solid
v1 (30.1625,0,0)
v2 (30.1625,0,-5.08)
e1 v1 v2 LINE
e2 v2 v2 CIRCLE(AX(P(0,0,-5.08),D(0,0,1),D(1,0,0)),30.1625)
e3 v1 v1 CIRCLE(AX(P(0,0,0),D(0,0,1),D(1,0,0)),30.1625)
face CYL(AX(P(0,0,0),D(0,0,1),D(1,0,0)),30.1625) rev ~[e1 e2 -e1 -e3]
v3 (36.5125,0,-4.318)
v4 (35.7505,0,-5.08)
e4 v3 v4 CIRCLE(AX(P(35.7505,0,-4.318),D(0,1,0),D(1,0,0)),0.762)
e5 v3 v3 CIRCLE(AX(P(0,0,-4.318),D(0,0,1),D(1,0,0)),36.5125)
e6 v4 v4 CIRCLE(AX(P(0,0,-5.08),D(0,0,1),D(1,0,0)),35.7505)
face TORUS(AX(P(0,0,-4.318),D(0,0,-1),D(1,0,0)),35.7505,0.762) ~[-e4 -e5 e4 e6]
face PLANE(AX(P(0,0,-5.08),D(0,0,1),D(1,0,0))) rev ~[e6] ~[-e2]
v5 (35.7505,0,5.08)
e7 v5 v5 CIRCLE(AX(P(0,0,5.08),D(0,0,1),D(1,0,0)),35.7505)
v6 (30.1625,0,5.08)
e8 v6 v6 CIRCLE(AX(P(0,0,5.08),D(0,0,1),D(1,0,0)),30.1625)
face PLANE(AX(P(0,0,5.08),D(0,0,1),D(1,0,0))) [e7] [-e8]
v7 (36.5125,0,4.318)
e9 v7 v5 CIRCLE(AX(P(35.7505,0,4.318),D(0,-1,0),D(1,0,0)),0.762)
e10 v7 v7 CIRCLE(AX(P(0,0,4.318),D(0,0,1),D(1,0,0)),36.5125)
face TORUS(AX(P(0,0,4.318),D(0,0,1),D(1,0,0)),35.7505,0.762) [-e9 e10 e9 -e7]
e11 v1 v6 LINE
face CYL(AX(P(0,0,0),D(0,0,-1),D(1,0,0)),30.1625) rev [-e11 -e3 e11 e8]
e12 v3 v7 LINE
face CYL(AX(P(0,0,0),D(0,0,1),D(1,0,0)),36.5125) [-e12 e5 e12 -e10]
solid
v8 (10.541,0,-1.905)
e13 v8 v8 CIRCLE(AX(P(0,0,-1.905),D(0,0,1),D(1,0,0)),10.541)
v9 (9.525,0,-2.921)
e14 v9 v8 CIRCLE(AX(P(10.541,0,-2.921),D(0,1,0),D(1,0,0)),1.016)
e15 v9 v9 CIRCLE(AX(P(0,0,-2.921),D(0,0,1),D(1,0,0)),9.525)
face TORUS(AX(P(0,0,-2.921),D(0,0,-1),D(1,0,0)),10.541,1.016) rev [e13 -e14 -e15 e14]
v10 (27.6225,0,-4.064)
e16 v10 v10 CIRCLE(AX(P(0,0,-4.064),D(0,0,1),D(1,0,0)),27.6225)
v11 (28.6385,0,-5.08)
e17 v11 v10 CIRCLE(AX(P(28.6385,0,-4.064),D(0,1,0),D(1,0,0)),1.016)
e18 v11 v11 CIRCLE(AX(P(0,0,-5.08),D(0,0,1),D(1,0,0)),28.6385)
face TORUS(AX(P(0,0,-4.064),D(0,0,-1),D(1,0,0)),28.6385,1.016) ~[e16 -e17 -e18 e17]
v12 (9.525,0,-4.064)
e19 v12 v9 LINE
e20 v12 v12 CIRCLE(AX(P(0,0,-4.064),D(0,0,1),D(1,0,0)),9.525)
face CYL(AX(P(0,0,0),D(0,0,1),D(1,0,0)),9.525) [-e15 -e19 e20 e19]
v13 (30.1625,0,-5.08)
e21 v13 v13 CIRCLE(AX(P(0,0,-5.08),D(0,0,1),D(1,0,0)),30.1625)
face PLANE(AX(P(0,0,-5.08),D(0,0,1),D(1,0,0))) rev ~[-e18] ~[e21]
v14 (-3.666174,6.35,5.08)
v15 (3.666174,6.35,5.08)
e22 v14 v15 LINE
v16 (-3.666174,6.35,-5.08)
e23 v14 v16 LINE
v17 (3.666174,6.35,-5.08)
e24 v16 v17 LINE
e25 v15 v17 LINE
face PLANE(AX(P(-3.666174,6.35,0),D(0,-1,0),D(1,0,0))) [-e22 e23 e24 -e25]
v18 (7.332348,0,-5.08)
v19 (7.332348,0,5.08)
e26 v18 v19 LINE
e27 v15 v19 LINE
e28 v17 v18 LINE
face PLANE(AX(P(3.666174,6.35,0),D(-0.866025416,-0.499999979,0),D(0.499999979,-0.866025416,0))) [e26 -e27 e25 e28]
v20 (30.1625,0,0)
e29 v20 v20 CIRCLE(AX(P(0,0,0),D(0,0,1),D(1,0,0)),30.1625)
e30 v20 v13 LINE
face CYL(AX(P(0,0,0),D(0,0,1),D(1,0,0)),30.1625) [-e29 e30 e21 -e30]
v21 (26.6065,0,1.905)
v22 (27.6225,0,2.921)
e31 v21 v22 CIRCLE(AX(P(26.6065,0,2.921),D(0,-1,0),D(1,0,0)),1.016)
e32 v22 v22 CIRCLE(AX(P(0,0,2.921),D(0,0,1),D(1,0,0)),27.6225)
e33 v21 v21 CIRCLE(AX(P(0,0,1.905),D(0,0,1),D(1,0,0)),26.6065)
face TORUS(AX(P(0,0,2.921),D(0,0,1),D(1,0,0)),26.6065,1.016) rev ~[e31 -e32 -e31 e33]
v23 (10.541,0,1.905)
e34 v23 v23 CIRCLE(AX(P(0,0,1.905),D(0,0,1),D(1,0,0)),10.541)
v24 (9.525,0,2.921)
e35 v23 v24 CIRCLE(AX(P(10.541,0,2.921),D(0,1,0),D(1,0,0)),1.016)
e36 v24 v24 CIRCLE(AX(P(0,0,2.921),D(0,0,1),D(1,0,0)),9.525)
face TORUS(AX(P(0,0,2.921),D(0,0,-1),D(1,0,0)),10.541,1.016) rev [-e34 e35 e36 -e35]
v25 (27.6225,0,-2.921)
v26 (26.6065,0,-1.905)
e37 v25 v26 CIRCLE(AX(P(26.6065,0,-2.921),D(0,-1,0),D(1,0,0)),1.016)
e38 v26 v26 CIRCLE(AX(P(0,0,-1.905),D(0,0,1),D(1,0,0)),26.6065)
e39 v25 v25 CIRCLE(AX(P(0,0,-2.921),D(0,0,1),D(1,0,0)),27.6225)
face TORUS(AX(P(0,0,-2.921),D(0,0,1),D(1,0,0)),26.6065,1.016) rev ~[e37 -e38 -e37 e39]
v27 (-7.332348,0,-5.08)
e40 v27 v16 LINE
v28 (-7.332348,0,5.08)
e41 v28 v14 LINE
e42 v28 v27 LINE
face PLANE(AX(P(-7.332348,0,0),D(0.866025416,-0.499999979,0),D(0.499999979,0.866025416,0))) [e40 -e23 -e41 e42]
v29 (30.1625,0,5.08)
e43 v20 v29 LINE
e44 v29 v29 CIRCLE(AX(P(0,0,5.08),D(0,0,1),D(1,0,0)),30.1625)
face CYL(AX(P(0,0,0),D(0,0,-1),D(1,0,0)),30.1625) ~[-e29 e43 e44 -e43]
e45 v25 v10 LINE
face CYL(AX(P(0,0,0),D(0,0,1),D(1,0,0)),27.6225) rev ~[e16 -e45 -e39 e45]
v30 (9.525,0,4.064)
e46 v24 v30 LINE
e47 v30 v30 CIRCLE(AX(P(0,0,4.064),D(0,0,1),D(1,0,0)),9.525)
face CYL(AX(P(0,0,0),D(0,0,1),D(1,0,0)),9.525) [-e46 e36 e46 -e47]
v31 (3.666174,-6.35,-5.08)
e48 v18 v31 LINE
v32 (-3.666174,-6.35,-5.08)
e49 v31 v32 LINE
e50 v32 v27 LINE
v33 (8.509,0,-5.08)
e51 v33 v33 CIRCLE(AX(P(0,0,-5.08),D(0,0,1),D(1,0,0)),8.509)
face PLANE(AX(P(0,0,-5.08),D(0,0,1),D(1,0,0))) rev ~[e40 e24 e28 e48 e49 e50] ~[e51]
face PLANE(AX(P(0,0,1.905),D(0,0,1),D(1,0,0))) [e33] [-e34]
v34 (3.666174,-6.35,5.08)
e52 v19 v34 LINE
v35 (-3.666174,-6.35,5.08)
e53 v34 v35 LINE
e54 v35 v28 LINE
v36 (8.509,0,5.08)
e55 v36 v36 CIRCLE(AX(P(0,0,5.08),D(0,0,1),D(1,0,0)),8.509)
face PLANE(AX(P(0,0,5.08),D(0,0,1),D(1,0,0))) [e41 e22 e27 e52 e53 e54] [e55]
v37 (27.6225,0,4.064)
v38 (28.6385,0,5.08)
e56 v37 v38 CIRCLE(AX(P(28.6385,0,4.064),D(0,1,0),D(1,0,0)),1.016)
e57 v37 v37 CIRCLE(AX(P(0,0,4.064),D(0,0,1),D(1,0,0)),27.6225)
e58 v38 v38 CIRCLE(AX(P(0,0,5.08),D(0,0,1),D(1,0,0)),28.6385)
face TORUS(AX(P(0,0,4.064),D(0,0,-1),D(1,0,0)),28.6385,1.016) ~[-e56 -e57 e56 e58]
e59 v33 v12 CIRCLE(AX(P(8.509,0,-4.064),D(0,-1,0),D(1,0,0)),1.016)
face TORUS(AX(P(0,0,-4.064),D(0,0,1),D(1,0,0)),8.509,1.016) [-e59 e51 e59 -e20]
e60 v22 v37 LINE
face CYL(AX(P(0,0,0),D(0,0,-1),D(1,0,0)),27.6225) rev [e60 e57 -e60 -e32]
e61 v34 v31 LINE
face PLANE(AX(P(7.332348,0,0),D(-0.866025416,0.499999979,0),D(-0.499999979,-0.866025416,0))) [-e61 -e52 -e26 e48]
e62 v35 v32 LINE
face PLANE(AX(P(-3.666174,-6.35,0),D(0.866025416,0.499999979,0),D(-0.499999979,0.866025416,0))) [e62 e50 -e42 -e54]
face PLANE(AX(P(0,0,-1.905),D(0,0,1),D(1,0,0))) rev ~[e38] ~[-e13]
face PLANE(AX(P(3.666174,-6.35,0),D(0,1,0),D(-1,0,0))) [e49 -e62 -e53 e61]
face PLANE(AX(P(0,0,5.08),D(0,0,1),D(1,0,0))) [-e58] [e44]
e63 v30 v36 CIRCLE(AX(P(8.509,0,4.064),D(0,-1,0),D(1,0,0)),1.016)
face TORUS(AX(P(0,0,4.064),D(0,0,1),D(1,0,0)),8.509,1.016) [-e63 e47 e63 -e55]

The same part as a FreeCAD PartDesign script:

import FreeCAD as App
import Part
import Sketcher

V = App.Vector
Q = App.Units.Quantity


def edges_at(feature, points):
    """Names of the edges that pass closest to the given points."""
    edges = feature.Shape.Edges
    near = lambda p: min(range(len(edges)), key=lambda i: edges[i].distToShape(Part.Vertex(*p))[0])
    return sorted({f"Edge{near(p) + 1}" for p in points})


def add_polygon(sketch, points):
    """Adds a closed chain of lines whose ends are joined by coincident constraints."""
    first, n = sketch.GeometryCount, len(points)
    for a, b in zip(points, points[1:] + points[:1]):
        sketch.addGeometry(Part.LineSegment(App.Vector(*a, 0), App.Vector(*b, 0)), False)
    for i in range(n):
        sketch.addConstraint(Sketcher.Constraint("Coincident", first + i, 2, first + (i + 1) % n, 1))

doc = App.newDocument("Part")
body = doc.addObject("PartDesign::Body", "Body")
body.AllowCompound = True

# Sketch on XY plane
sketch1 = body.newObject("Sketcher::SketchObject", "Sketch")
sketch1.AttachmentSupport = (doc.getObject("XY_Plane"), [""])
sketch1.MapMode = "FlatFace"
sketch1.addGeometry(Part.Circle(V(0, 0, 0), V(0, 0, 1), 30), False)  # 0
sketch1.addGeometry(Part.Circle(V(0, 0, 0), V(0, 0, 1), 28), False)  # 1
sketch1.addGeometry(Part.Circle(V(0, 0, 0), V(0, 0, 1), 10), False)  # 2
add_polygon(sketch1, [(4, 6), (7, 0), (4, -6), (-4, -6), (-7, 0), (-4, 6)])  # lines 3-8
sketch1.addConstraint([
    Sketcher.Constraint("Horizontal", 5),
    Sketcher.Constraint("Horizontal", 8),
    Sketcher.Constraint("Coincident", 0, 3, -1, 1),
    Sketcher.Constraint("Coincident", 1, 3, -1, 1),
    Sketcher.Constraint("Coincident", 2, 3, -1, 1),
    Sketcher.Constraint("Symmetric", 3, 2, 6, 2, -1, 1),
    Sketcher.Constraint("Symmetric", 4, 2, 7, 2, -1, 1),
    Sketcher.Constraint("PointOnObject", 3, 2, -1),
    Sketcher.Constraint("Parallel", 3, 6),
    Sketcher.Constraint("Vertical", 5, 2, 7, 2),
    Sketcher.Constraint("Diameter", 2, Q("0.75 in")),
    Sketcher.Constraint("Diameter", 0, Q("2.375 in")),
    Sketcher.Constraint("Diameter", 1, Q("2.175 in")),
    Sketcher.Constraint("Angle", 3, Q("-60.000001 deg")),
    Sketcher.Constraint("DistanceY", 4, 2, -1, 1, Q("0.25 in")),
    Sketcher.Constraint("DistanceX", 5, 2, 5, 1, 7.332348),
])
pad1 = body.newObject("PartDesign::Pad", "Pad")
pad1.Profile = sketch1
pad1.Length = Q("0.4 in")
pad1.Midplane = True

# Sketch on XY plane
sketch2 = body.newObject("Sketcher::SketchObject", "Sketch001")
sketch2.AttachmentSupport = (doc.getObject("XY_Plane"), [""])
sketch2.MapMode = "FlatFace"
sketch2.addGeometry([
    Part.Circle(V(0, 0, 0), V(0, 0, 1), 28),
    Part.Circle(V(0, 0, 0), V(0, 0, 1), 10),
], False)
sketch2.addConstraint([
    Sketcher.Constraint("Coincident", 0, 3, -1, 1),
    Sketcher.Constraint("Coincident", 1, 3, -1, 1),
    Sketcher.Constraint("Diameter", 1, Q("0.75 in")),
    Sketcher.Constraint("Diameter", 0, Q("2.175 in")),
])
pad2 = body.newObject("PartDesign::Pad", "Pad001")
pad2.Profile = sketch2
pad2.Length = Q("0.15 in")
pad2.Midplane = True
doc.recompute()

fillet = body.newObject("PartDesign::Fillet", "Fillet")
fillet.Base = (pad2, edges_at(pad2, [
    (-27.622, 0, 1.905),
    (-9.525, 0, 1.905),
    (-27.622, 0, -1.905),
    (-9.525, 0, -1.905),
    (-27.622, 0, -5.08),
    (-9.525, 0, -5.08),
    (-9.525, 0, 5.08),
    (-27.622, 0, 5.08),
]))
fillet.Radius = Q("0.04 in")
body2 = doc.addObject("PartDesign::Body", "Body001")

# Sketch on XY plane
sketch3 = body2.newObject("Sketcher::SketchObject", "Sketch002")
sketch3.AttachmentSupport = (doc.getObject("XY_Plane001"), [""])
sketch3.MapMode = "FlatFace"
sketch3.addGeometry([
    Part.Circle(V(0, 0, 0), V(0, 0, 1), 37),
    Part.Circle(V(0, 0, 0), V(0, 0, 1), 30),
], False)
sketch3.addConstraint([
    Sketcher.Constraint("Coincident", 0, 3, -1, 1),
    Sketcher.Constraint("Coincident", 1, 3, -1, 1),
    Sketcher.Constraint("Diameter", 0, Q("2.875 in")),
    Sketcher.Constraint("Diameter", 1, Q("2.375 in")),
])
pad3 = body2.newObject("PartDesign::Pad", "Pad002")
pad3.Profile = sketch3
pad3.Type = "TwoLengths"
pad3.Length = Q("0.2 in")
pad3.Length2 = Q("0.2 in")
doc.recompute()

fillet2 = body2.newObject("PartDesign::Fillet", "Fillet001")
fillet2.Base = (pad3, edges_at(pad3, [(36.513, 0, 0), (-36.513, 0, -5.08), (-36.513, 0, 5.08)]))
fillet2.Radius = Q("0.03 in")

doc.recompute()
